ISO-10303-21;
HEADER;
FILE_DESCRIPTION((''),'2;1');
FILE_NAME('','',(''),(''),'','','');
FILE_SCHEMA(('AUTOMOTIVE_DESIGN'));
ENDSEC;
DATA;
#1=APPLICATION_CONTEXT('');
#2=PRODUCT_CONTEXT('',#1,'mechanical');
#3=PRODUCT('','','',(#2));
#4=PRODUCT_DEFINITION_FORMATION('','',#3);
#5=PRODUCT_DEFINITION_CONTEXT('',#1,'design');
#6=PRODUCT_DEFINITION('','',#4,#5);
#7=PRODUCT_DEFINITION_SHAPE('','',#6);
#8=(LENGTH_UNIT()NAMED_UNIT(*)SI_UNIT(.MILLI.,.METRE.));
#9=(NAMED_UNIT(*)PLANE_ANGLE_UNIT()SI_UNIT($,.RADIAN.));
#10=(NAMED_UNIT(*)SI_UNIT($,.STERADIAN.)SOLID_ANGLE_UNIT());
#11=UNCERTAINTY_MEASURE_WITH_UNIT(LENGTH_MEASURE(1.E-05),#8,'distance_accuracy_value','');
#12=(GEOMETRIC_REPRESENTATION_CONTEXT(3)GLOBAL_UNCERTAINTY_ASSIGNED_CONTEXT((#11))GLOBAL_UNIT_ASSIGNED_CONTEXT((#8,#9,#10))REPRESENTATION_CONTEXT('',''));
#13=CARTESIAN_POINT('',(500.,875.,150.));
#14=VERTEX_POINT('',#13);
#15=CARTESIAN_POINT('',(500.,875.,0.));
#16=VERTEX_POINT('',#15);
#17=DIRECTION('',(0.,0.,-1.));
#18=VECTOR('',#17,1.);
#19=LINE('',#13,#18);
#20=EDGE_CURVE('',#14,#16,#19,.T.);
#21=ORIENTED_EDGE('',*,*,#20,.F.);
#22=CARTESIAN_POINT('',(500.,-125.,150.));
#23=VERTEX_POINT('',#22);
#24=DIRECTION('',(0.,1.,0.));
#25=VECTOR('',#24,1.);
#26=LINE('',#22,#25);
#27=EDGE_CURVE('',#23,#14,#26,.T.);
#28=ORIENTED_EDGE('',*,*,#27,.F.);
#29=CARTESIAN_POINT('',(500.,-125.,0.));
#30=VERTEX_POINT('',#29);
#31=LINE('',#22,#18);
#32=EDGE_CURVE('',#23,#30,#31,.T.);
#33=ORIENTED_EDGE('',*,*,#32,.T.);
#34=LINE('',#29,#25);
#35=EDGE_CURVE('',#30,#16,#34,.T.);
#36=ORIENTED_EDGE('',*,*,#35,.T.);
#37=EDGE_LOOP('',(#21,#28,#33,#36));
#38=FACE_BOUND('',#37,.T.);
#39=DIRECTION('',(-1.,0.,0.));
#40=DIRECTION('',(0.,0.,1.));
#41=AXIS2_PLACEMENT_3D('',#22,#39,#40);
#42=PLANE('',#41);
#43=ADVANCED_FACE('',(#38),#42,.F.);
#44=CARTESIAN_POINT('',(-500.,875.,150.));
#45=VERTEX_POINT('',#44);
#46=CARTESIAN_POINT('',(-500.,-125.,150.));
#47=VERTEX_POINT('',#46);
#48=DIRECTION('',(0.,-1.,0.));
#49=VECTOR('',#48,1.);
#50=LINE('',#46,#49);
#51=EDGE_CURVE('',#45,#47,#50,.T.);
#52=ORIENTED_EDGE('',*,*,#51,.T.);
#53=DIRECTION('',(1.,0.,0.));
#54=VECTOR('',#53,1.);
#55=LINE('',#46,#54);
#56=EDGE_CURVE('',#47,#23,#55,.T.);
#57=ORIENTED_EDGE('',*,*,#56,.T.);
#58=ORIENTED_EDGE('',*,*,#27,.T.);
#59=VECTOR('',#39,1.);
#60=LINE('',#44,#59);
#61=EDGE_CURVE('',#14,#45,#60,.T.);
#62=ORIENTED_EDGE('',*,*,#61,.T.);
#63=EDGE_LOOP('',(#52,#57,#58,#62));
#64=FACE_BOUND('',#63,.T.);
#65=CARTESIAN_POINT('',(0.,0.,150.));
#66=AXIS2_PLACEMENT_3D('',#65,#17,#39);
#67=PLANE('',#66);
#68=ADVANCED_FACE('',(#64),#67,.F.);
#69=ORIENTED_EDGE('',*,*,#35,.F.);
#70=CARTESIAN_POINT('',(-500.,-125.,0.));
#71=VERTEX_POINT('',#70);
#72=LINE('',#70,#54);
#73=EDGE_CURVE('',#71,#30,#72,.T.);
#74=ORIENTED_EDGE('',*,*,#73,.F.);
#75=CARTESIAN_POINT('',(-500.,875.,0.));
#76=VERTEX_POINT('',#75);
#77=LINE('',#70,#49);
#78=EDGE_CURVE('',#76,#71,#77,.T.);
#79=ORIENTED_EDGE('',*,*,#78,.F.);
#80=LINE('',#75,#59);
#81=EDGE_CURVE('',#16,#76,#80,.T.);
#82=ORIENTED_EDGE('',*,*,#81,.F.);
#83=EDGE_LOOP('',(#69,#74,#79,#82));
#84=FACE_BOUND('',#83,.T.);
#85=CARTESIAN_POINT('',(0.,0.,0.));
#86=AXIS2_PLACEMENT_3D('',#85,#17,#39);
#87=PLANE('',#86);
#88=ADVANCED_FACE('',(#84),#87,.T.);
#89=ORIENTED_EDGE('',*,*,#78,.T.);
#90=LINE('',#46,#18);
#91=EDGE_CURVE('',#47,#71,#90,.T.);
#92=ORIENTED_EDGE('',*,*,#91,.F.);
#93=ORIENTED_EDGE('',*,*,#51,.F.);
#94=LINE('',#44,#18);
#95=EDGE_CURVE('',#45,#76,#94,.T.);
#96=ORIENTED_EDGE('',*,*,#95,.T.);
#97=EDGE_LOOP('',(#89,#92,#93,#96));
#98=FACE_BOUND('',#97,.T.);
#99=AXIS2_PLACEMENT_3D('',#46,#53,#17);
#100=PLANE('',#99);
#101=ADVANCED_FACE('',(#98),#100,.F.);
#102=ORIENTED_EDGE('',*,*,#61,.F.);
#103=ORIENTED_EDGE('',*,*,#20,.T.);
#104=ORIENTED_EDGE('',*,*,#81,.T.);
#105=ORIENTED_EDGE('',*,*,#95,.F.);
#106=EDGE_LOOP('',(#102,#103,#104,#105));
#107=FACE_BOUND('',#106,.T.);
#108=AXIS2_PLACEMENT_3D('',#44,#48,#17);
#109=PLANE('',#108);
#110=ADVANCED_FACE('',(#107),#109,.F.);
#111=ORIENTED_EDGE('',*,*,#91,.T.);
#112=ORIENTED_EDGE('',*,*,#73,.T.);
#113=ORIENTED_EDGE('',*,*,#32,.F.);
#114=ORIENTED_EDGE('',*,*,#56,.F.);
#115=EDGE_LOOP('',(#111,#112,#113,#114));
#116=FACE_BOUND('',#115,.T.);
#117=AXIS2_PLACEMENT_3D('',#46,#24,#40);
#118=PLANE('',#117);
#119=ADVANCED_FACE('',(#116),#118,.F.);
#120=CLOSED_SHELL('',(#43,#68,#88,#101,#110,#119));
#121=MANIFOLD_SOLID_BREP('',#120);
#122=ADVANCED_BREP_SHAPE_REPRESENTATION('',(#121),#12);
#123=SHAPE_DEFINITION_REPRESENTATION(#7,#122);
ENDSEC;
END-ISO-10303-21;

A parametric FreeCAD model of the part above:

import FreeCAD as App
import Part
import Sketcher

doc = App.newDocument("Part")
body = doc.addObject("PartDesign::Body", "Body")

sketch1 = body.newObject("Sketcher::SketchObject", "Sketch")
sketch1.AttachmentSupport = (doc.getObject("XY_Plane"), [""])
sketch1.MapMode = "FlatFace"
sketch1.addGeometry([
    Part.LineSegment(App.Vector(-500, 125, 0), App.Vector(-500, -125, 0)),
    Part.LineSegment(App.Vector(-500, -125, 0), App.Vector(500, -125, 0)),
    Part.LineSegment(App.Vector(500, -125, 0), App.Vector(500, 125, 0)),
    Part.LineSegment(App.Vector(500, 125, 0), App.Vector(-500, 125, 0)),
], False)
sketch1.addConstraint([
    Sketcher.Constraint("Coincident", 0, 2, 1, 1),
    Sketcher.Constraint("Coincident", 1, 2, 2, 1),
    Sketcher.Constraint("Coincident", 2, 2, 3, 1),
    Sketcher.Constraint("Coincident", 3, 2, 0, 1),
    Sketcher.Constraint("Vertical", 0),
    Sketcher.Constraint("Horizontal", 1),
    Sketcher.Constraint("Vertical", 2),
    Sketcher.Constraint("Horizontal", 3),
    Sketcher.Constraint("Symmetric", 0, 2, 2, 2, -1, 1),
    Sketcher.Constraint("DistanceX", 1, 1, 1, 2, 1000.0),
    Sketcher.Constraint("DistanceY", 0, 2, 0, 1, 250.0),
])
pad1 = body.newObject("PartDesign::Pad", "Pad")
pad1.Profile = sketch1
pad1.Length = 150

sketch2 = body.newObject("Sketcher::SketchObject", "Sketch001")
sketch2.AttachmentSupport = (doc.getObject("XY_Plane"), [""])
sketch2.MapMode = "FlatFace"
sketch2.addGeometry([
    Part.LineSegment(App.Vector(-500, 375, 0), App.Vector(-500, 125, 0)),
    Part.LineSegment(App.Vector(-500, 125, 0), App.Vector(500, 125, 0)),
    Part.LineSegment(App.Vector(500, 125, 0), App.Vector(500, 375, 0)),
    Part.LineSegment(App.Vector(500, 375, 0), App.Vector(-500, 375, 0)),
], False)
sketch2.addConstraint([
    Sketcher.Constraint("Coincident", 0, 2, 1, 1),
    Sketcher.Constraint("Coincident", 1, 2, 2, 1),
    Sketcher.Constraint("Coincident", 2, 2, 3, 1),
    Sketcher.Constraint("Coincident", 3, 2, 0, 1),
    Sketcher.Constraint("Vertical", 0),
    Sketcher.Constraint("Horizontal", 1),
    Sketcher.Constraint("Vertical", 2),
    Sketcher.Constraint("Horizontal", 3),
    Sketcher.Constraint("DistanceX", 1, 1, 1, 2, 1000.0),
    Sketcher.Constraint("DistanceY", 0, 2, 0, 1, 250.0),
    Sketcher.Constraint("DistanceX", 0, 2, -1, 1, 500.0),
    Sketcher.Constraint("DistanceY", -1, 1, 0, 2, 125.0),
])
pad2 = body.newObject("PartDesign::Pad", "Pad001")
pad2.Profile = sketch2
pad2.Length = 150

sketch3 = body.newObject("Sketcher::SketchObject", "Sketch002")
sketch3.AttachmentSupport = (doc.getObject("XY_Plane"), [""])
sketch3.MapMode = "FlatFace"
sketch3.addGeometry([
    Part.LineSegment(App.Vector(-500, 625, 0), App.Vector(-500, 375, 0)),
    Part.LineSegment(App.Vector(-500, 375, 0), App.Vector(500, 375, 0)),
    Part.LineSegment(App.Vector(500, 375, 0), App.Vector(500, 625, 0)),
    Part.LineSegment(App.Vector(500, 625, 0), App.Vector(-500, 625, 0)),
], False)
sketch3.addConstraint([
    Sketcher.Constraint("Coincident", 0, 2, 1, 1),
    Sketcher.Constraint("Coincident", 1, 2, 2, 1),
    Sketcher.Constraint("Coincident", 2, 2, 3, 1),
    Sketcher.Constraint("Coincident", 3, 2, 0, 1),
    Sketcher.Constraint("Vertical", 0),
    Sketcher.Constraint("Horizontal", 1),
    Sketcher.Constraint("Vertical", 2),
    Sketcher.Constraint("Horizontal", 3),
    Sketcher.Constraint("DistanceX", 1, 1, 1, 2, 1000.0),
    Sketcher.Constraint("DistanceY", 0, 2, 0, 1, 250.0),
    Sketcher.Constraint("DistanceX", 0, 2, -1, 1, 500.0),
    Sketcher.Constraint("DistanceY", -1, 1, 0, 2, 375.0),
])
pad3 = body.newObject("PartDesign::Pad", "Pad002")
pad3.Profile = sketch3
pad3.Length = 150

sketch4 = body.newObject("Sketcher::SketchObject", "Sketch003")
sketch4.AttachmentSupport = (doc.getObject("XY_Plane"), [""])
sketch4.MapMode = "FlatFace"
sketch4.addGeometry([
    Part.LineSegment(App.Vector(-500, 875, 0), App.Vector(-500, 625, 0)),
    Part.LineSegment(App.Vector(-500, 625, 0), App.Vector(500, 625, 0)),
    Part.LineSegment(App.Vector(500, 625, 0), App.Vector(500, 875, 0)),
    Part.LineSegment(App.Vector(500, 875, 0), App.Vector(-500, 875, 0)),
], False)
sketch4.addConstraint([
    Sketcher.Constraint("Coincident", 0, 2, 1, 1),
    Sketcher.Constraint("Coincident", 1, 2, 2, 1),
    Sketcher.Constraint("Coincident", 2, 2, 3, 1),
    Sketcher.Constraint("Coincident", 3, 2, 0, 1),
    Sketcher.Constraint("Vertical", 0),
    Sketcher.Constraint("Horizontal", 1),
    Sketcher.Constraint("Vertical", 2),
    Sketcher.Constraint("Horizontal", 3),
    Sketcher.Constraint("DistanceX", 1, 1, 1, 2, 1000.0),
    Sketcher.Constraint("DistanceY", 0, 2, 0, 1, 250.0),
    Sketcher.Constraint("DistanceX", 0, 2, -1, 1, 500.0),
    Sketcher.Constraint("DistanceY", -1, 1, 0, 2, 625.0),
])
pad4 = body.newObject("PartDesign::Pad", "Pad003")
pad4.Profile = sketch4
pad4.Length = 150

doc.recompute()
